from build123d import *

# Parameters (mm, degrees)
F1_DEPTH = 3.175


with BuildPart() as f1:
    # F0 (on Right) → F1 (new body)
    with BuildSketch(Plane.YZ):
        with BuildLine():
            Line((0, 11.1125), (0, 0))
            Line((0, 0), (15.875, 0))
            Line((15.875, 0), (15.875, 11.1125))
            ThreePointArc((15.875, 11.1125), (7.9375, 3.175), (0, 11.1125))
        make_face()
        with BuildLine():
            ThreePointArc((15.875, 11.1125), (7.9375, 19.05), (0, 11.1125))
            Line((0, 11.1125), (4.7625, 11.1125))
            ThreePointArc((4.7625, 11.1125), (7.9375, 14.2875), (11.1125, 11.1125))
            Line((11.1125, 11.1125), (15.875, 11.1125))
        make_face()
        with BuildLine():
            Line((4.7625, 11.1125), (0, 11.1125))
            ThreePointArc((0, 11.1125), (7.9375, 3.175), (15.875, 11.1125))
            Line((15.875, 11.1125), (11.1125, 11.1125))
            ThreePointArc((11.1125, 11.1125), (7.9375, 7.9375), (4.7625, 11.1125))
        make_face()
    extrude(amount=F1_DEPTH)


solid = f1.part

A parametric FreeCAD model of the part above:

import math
import FreeCAD as App
import Part
import Sketcher

V = App.Vector
Q = App.Units.Quantity

doc = App.newDocument("Part")
body = doc.addObject("PartDesign::Body", "Body")

sketch1 = doc.addObject("Sketcher::SketchObject", "Sketch")
body.addObject(sketch1)
sketch1.AttachmentSupport = (doc.YZ_Plane, [""])
sketch1.MapMode = "FlatFace"
sketch1.addGeometry([
    Part.LineSegment(V(0, 11.1125, 0), V(0, 0, 0)),
    Part.LineSegment(V(0, 0, 0), V(15.875, 0, 0)),
    Part.LineSegment(V(15.875, 0, 0), V(15.875, 11.1125, 0)),
    Part.ArcOfCircle(Part.Circle(V(7.9375, 11.1125, 0), V(0, 0, 1), 7.9375), math.radians(0), math.radians(180)),
    Part.Circle(V(7.9375, 11.1125, 0), V(0, 0, 1), 3.175),
], False)
sketch1.addConstraint([
    Sketcher.Constraint("Coincident", 0, 2, 1, 1),
    Sketcher.Constraint("Coincident", 1, 2, 2, 1),
    Sketcher.Constraint("Tangent", 2, 2, 3, 1),
    Sketcher.Constraint("Tangent", 3, 2, 0, 1),
    Sketcher.Constraint("Vertical", 0),
    Sketcher.Constraint("Horizontal", 1),
    Sketcher.Constraint("Vertical", 2),
    Sketcher.Constraint("Coincident", 0, 2, -1, 1),
    Sketcher.Constraint("Coincident", 4, 3, 3, 3),
    Sketcher.Constraint("Diameter", 4, Q("0.25 in")),
    Sketcher.Constraint("Radius", 3, Q("0.3125 in")),
    Sketcher.Constraint("DistanceY", 0, 2, 0, 1, Q("0.4375 in")),
])
pad1 = doc.addObject("PartDesign::Pad", "Pad")
body.addObject(pad1)
pad1.Profile = sketch1
pad1.Length = Q("0.125 in")

doc.recompute()
